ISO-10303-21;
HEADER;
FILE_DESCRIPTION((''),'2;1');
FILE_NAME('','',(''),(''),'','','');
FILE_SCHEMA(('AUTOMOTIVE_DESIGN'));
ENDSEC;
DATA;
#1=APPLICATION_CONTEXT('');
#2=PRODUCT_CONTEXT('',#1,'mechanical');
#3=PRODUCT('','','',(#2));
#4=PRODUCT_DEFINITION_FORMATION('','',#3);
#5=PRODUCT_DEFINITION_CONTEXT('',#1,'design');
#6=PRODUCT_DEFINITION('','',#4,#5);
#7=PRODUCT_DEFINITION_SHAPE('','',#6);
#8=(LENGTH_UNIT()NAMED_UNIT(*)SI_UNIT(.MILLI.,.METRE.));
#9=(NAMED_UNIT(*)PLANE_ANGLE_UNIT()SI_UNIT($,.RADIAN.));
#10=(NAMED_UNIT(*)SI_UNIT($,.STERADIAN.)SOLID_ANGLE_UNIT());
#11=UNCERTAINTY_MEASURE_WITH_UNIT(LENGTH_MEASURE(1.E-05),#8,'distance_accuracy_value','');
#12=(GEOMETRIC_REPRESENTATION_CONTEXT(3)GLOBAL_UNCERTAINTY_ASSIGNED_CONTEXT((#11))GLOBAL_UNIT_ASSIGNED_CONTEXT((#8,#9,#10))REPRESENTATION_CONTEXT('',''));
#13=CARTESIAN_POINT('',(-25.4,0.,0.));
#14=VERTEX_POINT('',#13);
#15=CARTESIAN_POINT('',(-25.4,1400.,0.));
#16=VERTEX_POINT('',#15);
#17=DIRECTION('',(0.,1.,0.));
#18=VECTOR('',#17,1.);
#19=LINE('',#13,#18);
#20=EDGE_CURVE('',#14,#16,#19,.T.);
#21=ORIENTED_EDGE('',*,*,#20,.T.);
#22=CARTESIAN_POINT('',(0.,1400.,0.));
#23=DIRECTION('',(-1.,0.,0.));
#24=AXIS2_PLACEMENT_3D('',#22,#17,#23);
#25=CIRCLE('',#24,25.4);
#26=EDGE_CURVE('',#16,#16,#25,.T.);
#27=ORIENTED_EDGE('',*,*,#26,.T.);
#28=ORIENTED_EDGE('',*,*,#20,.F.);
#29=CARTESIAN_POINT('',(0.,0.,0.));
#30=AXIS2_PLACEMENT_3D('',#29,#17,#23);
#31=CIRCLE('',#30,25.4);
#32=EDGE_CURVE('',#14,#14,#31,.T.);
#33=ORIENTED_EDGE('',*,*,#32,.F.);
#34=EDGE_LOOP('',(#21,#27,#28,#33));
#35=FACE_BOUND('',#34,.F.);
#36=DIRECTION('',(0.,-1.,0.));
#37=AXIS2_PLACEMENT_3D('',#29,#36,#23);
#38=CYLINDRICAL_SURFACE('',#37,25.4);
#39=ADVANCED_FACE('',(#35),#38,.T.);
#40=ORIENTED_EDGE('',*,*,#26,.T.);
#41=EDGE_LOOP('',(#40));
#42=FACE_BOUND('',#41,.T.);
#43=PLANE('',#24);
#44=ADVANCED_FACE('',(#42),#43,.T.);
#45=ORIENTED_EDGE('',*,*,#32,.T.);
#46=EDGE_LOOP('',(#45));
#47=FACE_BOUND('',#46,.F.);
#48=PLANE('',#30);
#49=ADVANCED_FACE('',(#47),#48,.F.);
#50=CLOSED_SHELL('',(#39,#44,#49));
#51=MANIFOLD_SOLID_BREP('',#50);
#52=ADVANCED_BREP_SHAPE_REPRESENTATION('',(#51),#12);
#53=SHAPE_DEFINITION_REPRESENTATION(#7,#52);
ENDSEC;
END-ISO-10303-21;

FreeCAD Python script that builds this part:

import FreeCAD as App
import Part
import Sketcher

V = App.Vector
Q = App.Units.Quantity

doc = App.newDocument("Part")
params = doc.addObject("Spreadsheet::Sheet", "Params")
for row, (alias, value) in enumerate([
    ("sketch1_diameter", "2 in"),
    ("pad1_length", "55.1181102 in"),
], start=1):
    params.set(f"A{row}", alias)
    params.set(f"B{row}", "=" + value)
    params.setAlias(f"B{row}", alias)

body = doc.addObject("PartDesign::Body", "Body")

# Sketch on XZ plane
sketch1 = body.newObject("Sketcher::SketchObject", "Sketch")
sketch1.AttachmentSupport = (doc.getObject("XZ_Plane"), [""])
sketch1.MapMode = "FlatFace"
sketch1.addGeometry(Part.Circle(V(0, 0, 0), V(0, 0, 1), 25.4), False)
sketch1.addConstraint([
    Sketcher.Constraint("Coincident", 0, 3, -1, 1),
    Sketcher.Constraint("Diameter", 0, Q("2 in")),
])
sketch1.setExpression("Constraints[1]", "Params.sketch1_diameter")
pad1 = body.newObject("PartDesign::Pad", "Pad")
pad1.Profile = sketch1
pad1.setExpression("Length", "Params.pad1_length")
pad1.Reversed = True

doc.recompute()
